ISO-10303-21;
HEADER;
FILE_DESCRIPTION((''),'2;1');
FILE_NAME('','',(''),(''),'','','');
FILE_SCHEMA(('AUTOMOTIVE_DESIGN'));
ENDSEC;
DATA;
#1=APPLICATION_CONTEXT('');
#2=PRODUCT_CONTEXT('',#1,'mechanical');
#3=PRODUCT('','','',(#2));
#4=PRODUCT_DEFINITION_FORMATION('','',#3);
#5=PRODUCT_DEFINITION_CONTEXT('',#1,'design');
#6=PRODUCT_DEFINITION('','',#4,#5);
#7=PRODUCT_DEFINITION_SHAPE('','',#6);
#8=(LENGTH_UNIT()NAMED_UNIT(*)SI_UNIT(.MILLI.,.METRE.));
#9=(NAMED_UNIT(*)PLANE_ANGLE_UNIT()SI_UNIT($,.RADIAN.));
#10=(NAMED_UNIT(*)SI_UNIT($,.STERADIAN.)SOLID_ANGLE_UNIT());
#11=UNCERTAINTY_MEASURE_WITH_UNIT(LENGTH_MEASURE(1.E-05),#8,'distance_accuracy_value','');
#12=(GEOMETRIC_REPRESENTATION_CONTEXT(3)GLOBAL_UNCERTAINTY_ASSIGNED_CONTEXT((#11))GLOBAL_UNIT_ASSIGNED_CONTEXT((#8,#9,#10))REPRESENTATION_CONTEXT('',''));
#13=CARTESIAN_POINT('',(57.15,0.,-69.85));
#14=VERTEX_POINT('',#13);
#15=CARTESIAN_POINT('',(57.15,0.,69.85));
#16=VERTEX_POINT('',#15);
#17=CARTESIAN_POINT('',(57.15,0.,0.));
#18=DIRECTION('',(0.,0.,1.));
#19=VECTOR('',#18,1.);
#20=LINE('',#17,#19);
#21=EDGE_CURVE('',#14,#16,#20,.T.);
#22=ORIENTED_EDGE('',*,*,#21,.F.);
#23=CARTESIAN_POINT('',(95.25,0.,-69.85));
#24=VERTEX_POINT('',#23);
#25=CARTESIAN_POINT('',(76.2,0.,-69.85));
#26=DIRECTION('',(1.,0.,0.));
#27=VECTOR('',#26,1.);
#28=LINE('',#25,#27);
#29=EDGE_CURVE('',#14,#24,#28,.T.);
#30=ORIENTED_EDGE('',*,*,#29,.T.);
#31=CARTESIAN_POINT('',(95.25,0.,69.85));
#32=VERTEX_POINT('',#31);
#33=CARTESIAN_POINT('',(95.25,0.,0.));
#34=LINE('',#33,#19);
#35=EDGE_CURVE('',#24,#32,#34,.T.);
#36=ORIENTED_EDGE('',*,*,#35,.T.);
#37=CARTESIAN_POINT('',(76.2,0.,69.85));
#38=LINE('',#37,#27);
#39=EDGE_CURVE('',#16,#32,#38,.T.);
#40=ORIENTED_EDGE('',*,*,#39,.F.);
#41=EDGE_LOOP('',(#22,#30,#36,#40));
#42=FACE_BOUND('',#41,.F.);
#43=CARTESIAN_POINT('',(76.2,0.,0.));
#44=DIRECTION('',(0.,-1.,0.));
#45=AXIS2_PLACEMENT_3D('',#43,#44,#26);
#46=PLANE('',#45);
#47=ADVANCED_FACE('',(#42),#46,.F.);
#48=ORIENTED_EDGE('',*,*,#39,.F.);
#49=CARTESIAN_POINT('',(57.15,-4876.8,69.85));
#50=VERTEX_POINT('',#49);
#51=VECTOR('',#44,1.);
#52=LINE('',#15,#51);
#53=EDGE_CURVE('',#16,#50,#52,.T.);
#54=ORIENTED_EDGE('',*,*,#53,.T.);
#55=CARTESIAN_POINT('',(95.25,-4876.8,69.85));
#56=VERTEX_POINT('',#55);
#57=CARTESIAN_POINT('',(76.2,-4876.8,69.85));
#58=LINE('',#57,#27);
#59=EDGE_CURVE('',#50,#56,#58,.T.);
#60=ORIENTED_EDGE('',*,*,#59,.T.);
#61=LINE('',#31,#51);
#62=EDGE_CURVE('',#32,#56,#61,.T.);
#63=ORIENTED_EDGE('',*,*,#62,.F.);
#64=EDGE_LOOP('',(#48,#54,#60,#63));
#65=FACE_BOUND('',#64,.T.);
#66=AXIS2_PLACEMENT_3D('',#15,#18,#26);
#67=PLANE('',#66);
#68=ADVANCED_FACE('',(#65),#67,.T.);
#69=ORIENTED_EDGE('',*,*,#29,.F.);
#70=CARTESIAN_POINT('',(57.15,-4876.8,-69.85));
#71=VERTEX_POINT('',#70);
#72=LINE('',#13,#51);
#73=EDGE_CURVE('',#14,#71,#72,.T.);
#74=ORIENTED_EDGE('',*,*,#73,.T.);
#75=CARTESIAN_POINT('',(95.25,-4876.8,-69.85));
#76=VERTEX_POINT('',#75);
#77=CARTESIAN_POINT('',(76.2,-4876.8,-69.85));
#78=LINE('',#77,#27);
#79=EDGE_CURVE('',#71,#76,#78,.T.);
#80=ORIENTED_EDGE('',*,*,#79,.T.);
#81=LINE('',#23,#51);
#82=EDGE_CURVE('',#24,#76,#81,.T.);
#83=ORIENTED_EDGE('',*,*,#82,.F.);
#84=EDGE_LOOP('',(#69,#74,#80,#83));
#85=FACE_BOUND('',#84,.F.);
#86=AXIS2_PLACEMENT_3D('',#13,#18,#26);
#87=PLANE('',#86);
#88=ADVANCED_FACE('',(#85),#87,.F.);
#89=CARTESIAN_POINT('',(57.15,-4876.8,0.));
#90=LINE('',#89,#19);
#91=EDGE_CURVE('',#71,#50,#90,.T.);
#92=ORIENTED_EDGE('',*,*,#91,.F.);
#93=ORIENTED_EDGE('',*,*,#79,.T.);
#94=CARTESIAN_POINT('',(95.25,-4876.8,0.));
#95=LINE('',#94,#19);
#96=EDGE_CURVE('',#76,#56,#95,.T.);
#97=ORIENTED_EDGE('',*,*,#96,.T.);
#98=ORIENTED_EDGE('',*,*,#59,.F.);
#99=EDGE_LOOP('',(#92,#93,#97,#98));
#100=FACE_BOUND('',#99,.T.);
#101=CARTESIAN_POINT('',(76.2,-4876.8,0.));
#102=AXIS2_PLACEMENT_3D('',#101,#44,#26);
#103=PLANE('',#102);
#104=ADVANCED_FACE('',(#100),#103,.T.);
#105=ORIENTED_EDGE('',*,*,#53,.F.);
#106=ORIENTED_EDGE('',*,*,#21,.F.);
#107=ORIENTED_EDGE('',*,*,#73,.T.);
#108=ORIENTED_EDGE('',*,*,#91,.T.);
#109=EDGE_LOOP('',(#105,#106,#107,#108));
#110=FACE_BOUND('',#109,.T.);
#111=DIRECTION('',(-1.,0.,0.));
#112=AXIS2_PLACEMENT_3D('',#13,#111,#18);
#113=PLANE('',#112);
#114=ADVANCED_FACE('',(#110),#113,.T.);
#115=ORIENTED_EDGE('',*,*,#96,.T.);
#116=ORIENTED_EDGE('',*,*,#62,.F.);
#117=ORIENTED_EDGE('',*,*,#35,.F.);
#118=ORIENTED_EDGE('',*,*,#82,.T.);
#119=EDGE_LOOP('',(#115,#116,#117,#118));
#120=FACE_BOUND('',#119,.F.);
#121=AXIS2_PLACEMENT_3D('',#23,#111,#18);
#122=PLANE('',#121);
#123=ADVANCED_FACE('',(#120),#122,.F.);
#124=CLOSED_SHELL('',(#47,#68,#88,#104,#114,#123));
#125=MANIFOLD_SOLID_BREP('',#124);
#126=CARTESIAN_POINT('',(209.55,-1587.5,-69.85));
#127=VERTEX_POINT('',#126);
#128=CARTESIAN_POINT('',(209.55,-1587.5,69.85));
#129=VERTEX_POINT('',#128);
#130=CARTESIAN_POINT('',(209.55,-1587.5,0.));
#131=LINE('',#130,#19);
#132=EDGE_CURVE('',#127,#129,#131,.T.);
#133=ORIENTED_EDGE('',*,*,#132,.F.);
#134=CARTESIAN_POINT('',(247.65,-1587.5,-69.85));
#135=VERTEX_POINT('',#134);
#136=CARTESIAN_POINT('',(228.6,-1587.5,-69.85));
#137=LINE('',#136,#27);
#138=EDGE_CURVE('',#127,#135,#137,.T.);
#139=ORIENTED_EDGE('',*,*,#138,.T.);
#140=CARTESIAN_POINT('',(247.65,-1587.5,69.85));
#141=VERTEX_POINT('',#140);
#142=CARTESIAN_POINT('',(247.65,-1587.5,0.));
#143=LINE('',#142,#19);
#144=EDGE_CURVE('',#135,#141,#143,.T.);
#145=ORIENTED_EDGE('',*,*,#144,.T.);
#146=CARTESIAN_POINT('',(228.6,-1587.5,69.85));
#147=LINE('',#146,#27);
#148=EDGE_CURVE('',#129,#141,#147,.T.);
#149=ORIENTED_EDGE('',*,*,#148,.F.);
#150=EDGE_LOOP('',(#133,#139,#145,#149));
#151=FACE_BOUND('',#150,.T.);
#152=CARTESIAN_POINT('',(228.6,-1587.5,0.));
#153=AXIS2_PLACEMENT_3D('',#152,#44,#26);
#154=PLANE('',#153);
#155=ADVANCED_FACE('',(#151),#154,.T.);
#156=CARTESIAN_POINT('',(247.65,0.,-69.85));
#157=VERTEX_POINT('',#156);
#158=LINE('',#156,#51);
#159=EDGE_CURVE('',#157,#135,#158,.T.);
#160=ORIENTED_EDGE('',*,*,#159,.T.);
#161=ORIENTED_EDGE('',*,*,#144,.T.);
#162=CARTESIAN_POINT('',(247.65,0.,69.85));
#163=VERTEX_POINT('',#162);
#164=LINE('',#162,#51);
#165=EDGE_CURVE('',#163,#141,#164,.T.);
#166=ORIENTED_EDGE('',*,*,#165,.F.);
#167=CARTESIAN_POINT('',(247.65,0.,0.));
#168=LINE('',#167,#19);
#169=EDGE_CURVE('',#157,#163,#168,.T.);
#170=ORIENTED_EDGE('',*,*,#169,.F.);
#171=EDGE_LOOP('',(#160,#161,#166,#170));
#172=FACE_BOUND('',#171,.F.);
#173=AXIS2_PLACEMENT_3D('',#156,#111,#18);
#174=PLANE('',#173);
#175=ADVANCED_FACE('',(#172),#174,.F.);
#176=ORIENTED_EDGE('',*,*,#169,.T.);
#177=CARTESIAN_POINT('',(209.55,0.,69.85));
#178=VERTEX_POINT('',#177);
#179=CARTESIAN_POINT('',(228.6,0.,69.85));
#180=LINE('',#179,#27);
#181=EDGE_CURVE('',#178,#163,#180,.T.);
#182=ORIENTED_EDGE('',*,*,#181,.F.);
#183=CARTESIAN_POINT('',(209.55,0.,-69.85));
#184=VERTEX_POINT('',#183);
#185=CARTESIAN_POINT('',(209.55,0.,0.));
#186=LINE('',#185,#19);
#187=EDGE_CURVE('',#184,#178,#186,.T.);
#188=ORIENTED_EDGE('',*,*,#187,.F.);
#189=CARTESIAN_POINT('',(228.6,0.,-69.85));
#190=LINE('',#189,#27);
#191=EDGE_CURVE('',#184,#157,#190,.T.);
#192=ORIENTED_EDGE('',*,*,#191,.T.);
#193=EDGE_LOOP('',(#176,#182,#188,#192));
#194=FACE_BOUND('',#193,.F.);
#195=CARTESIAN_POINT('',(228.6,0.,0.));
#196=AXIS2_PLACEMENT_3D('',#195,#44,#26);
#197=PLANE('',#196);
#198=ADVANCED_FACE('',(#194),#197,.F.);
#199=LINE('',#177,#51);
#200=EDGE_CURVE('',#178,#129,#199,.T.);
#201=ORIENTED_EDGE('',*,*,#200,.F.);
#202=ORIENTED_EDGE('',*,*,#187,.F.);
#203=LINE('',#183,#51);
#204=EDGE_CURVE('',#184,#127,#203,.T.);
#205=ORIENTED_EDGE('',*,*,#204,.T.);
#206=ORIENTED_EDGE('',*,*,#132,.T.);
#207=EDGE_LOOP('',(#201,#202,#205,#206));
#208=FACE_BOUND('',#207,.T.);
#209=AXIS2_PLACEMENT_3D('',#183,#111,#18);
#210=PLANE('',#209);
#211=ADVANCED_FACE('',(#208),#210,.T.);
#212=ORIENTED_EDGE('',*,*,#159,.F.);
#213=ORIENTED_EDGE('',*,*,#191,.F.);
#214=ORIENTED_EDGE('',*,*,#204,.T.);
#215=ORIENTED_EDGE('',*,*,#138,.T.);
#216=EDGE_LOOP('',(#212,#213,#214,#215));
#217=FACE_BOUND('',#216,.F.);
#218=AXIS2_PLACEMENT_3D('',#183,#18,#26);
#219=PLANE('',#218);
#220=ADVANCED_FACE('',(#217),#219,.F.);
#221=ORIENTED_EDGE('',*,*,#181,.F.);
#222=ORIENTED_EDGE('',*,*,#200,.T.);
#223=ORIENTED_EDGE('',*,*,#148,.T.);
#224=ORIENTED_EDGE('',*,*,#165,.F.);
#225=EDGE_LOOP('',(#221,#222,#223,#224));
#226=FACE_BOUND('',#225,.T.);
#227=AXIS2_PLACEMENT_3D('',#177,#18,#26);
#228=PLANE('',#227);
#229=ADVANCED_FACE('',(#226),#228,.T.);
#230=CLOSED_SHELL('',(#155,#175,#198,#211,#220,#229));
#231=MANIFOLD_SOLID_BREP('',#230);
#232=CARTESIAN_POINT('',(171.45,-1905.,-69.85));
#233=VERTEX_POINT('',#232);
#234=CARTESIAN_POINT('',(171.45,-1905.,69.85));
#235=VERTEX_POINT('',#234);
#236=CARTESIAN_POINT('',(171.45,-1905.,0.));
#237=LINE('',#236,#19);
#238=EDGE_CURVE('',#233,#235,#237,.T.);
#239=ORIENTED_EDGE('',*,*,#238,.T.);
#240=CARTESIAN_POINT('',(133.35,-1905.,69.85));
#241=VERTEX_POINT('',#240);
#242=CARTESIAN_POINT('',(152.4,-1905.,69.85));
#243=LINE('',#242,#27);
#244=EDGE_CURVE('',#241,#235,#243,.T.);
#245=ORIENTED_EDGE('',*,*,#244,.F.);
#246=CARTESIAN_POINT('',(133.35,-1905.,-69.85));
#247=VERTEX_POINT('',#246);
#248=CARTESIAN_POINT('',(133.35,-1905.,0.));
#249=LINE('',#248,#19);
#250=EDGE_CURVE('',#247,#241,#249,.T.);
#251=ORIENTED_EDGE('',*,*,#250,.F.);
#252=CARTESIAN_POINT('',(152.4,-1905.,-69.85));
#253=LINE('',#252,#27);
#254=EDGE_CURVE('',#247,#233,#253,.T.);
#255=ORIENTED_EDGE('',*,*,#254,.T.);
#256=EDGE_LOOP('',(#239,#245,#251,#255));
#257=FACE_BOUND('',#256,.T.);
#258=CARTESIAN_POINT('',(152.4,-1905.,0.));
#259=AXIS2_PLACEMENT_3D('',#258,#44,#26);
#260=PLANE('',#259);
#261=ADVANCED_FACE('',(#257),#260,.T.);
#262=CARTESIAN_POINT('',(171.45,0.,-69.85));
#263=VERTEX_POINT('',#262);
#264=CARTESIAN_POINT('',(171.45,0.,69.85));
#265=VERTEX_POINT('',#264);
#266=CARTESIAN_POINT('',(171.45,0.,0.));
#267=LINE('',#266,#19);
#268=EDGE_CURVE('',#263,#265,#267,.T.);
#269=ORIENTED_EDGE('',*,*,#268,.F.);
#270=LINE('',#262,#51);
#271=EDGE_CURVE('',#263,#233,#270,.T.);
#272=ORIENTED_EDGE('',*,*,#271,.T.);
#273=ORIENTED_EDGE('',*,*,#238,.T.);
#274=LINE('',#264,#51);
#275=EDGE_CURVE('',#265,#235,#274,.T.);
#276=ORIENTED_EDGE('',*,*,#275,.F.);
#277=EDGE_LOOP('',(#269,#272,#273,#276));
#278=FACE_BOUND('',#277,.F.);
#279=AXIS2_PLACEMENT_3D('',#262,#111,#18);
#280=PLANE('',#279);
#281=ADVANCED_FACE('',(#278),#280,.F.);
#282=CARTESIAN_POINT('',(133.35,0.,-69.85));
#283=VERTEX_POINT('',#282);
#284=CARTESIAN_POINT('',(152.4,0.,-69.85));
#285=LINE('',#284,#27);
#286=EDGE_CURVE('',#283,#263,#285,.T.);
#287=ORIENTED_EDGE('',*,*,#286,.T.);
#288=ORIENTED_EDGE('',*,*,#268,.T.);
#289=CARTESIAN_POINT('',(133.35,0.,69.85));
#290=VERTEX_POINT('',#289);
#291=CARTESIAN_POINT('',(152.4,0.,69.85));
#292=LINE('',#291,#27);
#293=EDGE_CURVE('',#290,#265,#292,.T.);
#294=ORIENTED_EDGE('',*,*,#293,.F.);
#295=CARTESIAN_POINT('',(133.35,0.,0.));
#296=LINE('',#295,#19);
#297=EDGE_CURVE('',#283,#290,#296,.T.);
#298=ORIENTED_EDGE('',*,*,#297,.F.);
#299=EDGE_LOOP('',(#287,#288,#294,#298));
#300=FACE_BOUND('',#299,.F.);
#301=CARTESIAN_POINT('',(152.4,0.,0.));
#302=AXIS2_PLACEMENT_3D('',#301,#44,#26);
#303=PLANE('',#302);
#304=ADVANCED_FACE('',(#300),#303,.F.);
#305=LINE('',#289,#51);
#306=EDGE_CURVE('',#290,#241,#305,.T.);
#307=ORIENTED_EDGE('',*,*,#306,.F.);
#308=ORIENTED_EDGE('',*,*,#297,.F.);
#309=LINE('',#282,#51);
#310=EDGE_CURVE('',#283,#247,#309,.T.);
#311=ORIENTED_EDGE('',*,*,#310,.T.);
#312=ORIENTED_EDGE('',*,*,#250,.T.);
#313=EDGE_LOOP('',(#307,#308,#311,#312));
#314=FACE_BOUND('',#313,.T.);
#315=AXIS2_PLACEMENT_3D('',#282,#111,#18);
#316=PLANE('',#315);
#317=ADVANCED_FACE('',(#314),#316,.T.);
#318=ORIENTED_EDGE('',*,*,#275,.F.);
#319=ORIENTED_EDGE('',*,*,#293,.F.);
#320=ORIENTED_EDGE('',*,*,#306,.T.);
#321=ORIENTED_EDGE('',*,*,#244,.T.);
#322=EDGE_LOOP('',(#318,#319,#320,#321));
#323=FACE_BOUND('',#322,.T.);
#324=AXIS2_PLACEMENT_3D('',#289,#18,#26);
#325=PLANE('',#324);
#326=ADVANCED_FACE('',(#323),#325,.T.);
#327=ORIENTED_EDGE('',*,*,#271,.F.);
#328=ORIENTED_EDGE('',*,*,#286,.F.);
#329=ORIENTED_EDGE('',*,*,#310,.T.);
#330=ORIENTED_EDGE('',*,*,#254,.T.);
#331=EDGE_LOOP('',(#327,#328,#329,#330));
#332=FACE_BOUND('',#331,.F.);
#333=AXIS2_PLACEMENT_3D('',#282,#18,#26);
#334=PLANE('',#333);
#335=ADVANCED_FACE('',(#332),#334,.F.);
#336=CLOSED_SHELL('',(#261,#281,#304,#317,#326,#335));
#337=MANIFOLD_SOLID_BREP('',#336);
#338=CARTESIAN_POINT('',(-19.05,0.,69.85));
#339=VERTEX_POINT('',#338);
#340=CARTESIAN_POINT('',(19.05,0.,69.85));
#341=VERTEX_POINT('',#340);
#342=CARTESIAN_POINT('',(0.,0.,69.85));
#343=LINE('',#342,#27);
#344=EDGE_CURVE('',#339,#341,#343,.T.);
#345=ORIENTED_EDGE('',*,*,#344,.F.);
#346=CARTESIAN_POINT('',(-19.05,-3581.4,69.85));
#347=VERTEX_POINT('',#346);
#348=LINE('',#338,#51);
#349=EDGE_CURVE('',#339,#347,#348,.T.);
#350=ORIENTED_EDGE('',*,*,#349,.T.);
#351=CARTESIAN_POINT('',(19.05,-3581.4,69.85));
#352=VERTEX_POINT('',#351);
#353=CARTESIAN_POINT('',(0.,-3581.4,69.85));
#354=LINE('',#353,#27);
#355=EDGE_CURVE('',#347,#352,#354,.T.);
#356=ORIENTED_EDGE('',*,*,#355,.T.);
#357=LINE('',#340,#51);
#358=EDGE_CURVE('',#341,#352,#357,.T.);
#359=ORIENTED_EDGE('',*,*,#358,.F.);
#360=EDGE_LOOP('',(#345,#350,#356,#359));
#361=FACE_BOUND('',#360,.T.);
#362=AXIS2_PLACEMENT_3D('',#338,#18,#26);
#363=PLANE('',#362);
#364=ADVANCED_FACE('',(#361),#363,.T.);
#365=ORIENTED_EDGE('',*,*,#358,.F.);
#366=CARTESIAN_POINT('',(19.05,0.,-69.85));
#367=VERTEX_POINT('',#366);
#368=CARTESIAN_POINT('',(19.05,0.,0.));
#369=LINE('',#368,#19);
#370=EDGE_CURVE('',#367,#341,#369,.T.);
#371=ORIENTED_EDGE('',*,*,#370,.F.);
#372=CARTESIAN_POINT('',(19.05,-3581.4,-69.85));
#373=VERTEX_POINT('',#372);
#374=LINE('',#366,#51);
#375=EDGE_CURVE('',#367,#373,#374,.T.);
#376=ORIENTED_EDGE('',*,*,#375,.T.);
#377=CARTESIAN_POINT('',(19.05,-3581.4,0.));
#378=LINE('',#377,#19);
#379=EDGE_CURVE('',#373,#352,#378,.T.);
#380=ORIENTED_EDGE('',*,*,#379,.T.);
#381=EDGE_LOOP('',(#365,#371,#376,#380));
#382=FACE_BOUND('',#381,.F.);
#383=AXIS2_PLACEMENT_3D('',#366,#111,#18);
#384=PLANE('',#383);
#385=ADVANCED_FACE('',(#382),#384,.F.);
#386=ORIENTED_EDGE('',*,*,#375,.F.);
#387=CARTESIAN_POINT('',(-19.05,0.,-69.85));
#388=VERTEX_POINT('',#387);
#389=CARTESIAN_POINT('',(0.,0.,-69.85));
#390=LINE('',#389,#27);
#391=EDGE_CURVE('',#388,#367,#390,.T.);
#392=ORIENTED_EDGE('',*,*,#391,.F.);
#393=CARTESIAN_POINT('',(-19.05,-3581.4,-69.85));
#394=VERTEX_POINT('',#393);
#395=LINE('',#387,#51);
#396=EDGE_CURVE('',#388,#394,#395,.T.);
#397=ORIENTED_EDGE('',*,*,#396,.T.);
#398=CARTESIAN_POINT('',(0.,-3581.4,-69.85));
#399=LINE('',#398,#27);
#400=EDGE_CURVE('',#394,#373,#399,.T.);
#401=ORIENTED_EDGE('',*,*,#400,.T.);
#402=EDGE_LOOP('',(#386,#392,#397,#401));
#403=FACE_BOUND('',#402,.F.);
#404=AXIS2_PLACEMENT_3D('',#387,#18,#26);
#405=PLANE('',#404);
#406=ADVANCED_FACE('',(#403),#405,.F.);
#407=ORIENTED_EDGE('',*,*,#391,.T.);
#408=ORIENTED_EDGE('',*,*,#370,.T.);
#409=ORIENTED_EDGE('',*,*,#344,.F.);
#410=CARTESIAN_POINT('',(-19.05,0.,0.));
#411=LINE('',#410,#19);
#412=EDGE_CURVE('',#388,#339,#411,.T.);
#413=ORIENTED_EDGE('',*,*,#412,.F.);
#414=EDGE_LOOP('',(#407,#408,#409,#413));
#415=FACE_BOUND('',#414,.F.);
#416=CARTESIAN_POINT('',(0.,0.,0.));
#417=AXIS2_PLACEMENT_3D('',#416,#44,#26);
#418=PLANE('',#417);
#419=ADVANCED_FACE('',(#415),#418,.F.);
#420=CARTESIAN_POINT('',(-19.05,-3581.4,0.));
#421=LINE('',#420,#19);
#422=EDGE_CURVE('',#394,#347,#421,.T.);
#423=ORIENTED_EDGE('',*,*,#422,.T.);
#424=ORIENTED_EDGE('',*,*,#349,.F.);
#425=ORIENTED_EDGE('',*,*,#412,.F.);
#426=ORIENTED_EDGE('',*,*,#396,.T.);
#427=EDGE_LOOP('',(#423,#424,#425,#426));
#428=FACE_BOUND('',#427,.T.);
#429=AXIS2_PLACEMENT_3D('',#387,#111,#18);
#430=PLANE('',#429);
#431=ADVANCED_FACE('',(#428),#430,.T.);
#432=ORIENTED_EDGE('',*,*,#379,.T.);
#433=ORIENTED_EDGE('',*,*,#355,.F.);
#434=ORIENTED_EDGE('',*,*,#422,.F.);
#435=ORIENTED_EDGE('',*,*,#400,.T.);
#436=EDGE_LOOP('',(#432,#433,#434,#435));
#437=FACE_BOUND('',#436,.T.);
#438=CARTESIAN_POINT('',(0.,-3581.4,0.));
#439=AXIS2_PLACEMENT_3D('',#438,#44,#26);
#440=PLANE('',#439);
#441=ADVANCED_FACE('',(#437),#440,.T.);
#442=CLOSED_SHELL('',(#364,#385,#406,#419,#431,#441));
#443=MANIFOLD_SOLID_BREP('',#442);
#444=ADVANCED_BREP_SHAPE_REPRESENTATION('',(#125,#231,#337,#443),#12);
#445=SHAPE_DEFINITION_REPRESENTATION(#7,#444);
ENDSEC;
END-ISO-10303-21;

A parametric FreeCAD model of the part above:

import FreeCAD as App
import Part
import Sketcher
from FreeCAD import Vector
Q = App.Units.Quantity

doc = App.newDocument("Part")
params = doc.addObject("Spreadsheet::Sheet", "Params")
for row, (alias, value) in enumerate([
    ("sketch1_width", "1.5 in"),
    ("sketch1_height", "5.5 in"),
    ("pad1_length", "141 in"),
    ("sketch2_width", "1.5 in"),
    ("sketch2_height", "5.5 in"),
    ("pad2_length", "192 in"),
    ("sketch3_width", "1.5 in"),
    ("sketch3_height", "5.5 in"),
    ("pad3_length", "75 in"),
    ("sketch4_width", "1.5 in"),
    ("sketch4_height", "5.5 in"),
    ("pad4_length", "62.5 in"),
], start=1):
    params.set(f"A{row}", alias)
    params.set(f"B{row}", "=" + value)
    params.setAlias(f"B{row}", alias)

body = doc.addObject("PartDesign::Body", "Body")

# Sketch on XZ plane
sketch1 = body.newObject("Sketcher::SketchObject", "Sketch")
sketch1.AttachmentSupport = (doc.getObject("XZ_Plane"), [""])
sketch1.MapMode = "FlatFace"
sketch1.addGeometry([
    Part.LineSegment(Vector(-19, 70, 0), Vector(-19, -70, 0)),
    Part.LineSegment(Vector(-19, -70, 0), Vector(19, -70, 0)),
    Part.LineSegment(Vector(19, -70, 0), Vector(19, 70, 0)),
    Part.LineSegment(Vector(19, 70, 0), Vector(-19, 70, 0)),
], False)
sketch1.addConstraint([
    Sketcher.Constraint("Coincident", 0, 2, 1, 1),
    Sketcher.Constraint("Coincident", 1, 2, 2, 1),
    Sketcher.Constraint("Coincident", 2, 2, 3, 1),
    Sketcher.Constraint("Coincident", 3, 2, 0, 1),
    Sketcher.Constraint("Vertical", 0),
    Sketcher.Constraint("Horizontal", 1),
    Sketcher.Constraint("Vertical", 2),
    Sketcher.Constraint("Horizontal", 3),
    Sketcher.Constraint("Symmetric", 0, 2, 2, 2, -1, 1),
    Sketcher.Constraint("DistanceX", 1, 1, 1, 2, Q("1.5 in")),
    Sketcher.Constraint("DistanceY", 0, 2, 0, 1, Q("5.5 in")),
])
sketch1.setExpression("Constraints[9]", "Params.sketch1_width")
sketch1.setExpression("Constraints[10]", "Params.sketch1_height")
pad1 = body.newObject("PartDesign::Pad", "Pad")
pad1.Profile = sketch1
pad1.setExpression("Length", "Params.pad1_length")
body2 = doc.addObject("PartDesign::Body", "Body001")

# Sketch on XZ plane
sketch2 = body2.newObject("Sketcher::SketchObject", "Sketch001")
sketch2.AttachmentSupport = (doc.getObject("XZ_Plane001"), [""])
sketch2.MapMode = "FlatFace"
sketch2.addGeometry([
    Part.LineSegment(Vector(57, 70, 0), Vector(57, -70, 0)),
    Part.LineSegment(Vector(57, -70, 0), Vector(95, -70, 0)),
    Part.LineSegment(Vector(95, -70, 0), Vector(95, 70, 0)),
    Part.LineSegment(Vector(95, 70, 0), Vector(57, 70, 0)),
], False)
sketch2.addConstraint([
    Sketcher.Constraint("Coincident", 0, 2, 1, 1),
    Sketcher.Constraint("Coincident", 1, 2, 2, 1),
    Sketcher.Constraint("Coincident", 2, 2, 3, 1),
    Sketcher.Constraint("Coincident", 3, 2, 0, 1),
    Sketcher.Constraint("Vertical", 0),
    Sketcher.Constraint("Horizontal", 1),
    Sketcher.Constraint("Vertical", 2),
    Sketcher.Constraint("Horizontal", 3),
    Sketcher.Constraint("DistanceX", 1, 1, 1, 2, Q("1.5 in")),
    Sketcher.Constraint("DistanceY", 0, 2, 0, 1, Q("5.5 in")),
    Sketcher.Constraint("DistanceX", -1, 1, 0, 2, Q("2.25 in")),
    Sketcher.Constraint("DistanceY", 0, 2, -1, 1, Q("2.75 in")),
])
sketch2.setExpression("Constraints[8]", "Params.sketch2_width")
sketch2.setExpression("Constraints[9]", "Params.sketch2_height")
pad2 = body2.newObject("PartDesign::Pad", "Pad001")
pad2.Profile = sketch2
pad2.setExpression("Length", "Params.pad2_length")
body3 = doc.addObject("PartDesign::Body", "Body002")

# Sketch on XZ plane
sketch3 = body3.newObject("Sketcher::SketchObject", "Sketch002")
sketch3.AttachmentSupport = (doc.getObject("XZ_Plane002"), [""])
sketch3.MapMode = "FlatFace"
sketch3.addGeometry([
    Part.LineSegment(Vector(133, 70, 0), Vector(133, -70, 0)),
    Part.LineSegment(Vector(133, -70, 0), Vector(171, -70, 0)),
    Part.LineSegment(Vector(171, -70, 0), Vector(171, 70, 0)),
    Part.LineSegment(Vector(171, 70, 0), Vector(133, 70, 0)),
], False)
sketch3.addConstraint([
    Sketcher.Constraint("Coincident", 0, 2, 1, 1),
    Sketcher.Constraint("Coincident", 1, 2, 2, 1),
    Sketcher.Constraint("Coincident", 2, 2, 3, 1),
    Sketcher.Constraint("Coincident", 3, 2, 0, 1),
    Sketcher.Constraint("Vertical", 0),
    Sketcher.Constraint("Horizontal", 1),
    Sketcher.Constraint("Vertical", 2),
    Sketcher.Constraint("Horizontal", 3),
    Sketcher.Constraint("DistanceX", 1, 1, 1, 2, Q("1.5 in")),
    Sketcher.Constraint("DistanceY", 0, 2, 0, 1, Q("5.5 in")),
    Sketcher.Constraint("DistanceX", -1, 1, 0, 2, Q("5.25 in")),
    Sketcher.Constraint("DistanceY", 0, 2, -1, 1, Q("2.75 in")),
])
sketch3.setExpression("Constraints[8]", "Params.sketch3_width")
sketch3.setExpression("Constraints[9]", "Params.sketch3_height")
pad3 = body3.newObject("PartDesign::Pad", "Pad002")
pad3.Profile = sketch3
pad3.setExpression("Length", "Params.pad3_length")
body4 = doc.addObject("PartDesign::Body", "Body003")

# Sketch on XZ plane
sketch4 = body4.newObject("Sketcher::SketchObject", "Sketch003")
sketch4.AttachmentSupport = (doc.getObject("XZ_Plane003"), [""])
sketch4.MapMode = "FlatFace"
sketch4.addGeometry([
    Part.LineSegment(Vector(210, 70, 0), Vector(210, -70, 0)),
    Part.LineSegment(Vector(210, -70, 0), Vector(248, -70, 0)),
    Part.LineSegment(Vector(248, -70, 0), Vector(248, 70, 0)),
    Part.LineSegment(Vector(248, 70, 0), Vector(210, 70, 0)),
], False)
sketch4.addConstraint([
    Sketcher.Constraint("Coincident", 0, 2, 1, 1),
    Sketcher.Constraint("Coincident", 1, 2, 2, 1),
    Sketcher.Constraint("Coincident", 2, 2, 3, 1),
    Sketcher.Constraint("Coincident", 3, 2, 0, 1),
    Sketcher.Constraint("Vertical", 0),
    Sketcher.Constraint("Horizontal", 1),
    Sketcher.Constraint("Vertical", 2),
    Sketcher.Constraint("Horizontal", 3),
    Sketcher.Constraint("DistanceX", 1, 1, 1, 2, Q("1.5 in")),
    Sketcher.Constraint("DistanceY", 0, 2, 0, 1, Q("5.5 in")),
    Sketcher.Constraint("DistanceX", -1, 1, 0, 2, Q("8.25 in")),
    Sketcher.Constraint("DistanceY", 0, 2, -1, 1, Q("2.75 in")),
])
sketch4.setExpression("Constraints[8]", "Params.sketch4_width")
sketch4.setExpression("Constraints[9]", "Params.sketch4_height")
pad4 = body4.newObject("PartDesign::Pad", "Pad003")
pad4.Profile = sketch4
pad4.setExpression("Length", "Params.pad4_length")

doc.recompute()
